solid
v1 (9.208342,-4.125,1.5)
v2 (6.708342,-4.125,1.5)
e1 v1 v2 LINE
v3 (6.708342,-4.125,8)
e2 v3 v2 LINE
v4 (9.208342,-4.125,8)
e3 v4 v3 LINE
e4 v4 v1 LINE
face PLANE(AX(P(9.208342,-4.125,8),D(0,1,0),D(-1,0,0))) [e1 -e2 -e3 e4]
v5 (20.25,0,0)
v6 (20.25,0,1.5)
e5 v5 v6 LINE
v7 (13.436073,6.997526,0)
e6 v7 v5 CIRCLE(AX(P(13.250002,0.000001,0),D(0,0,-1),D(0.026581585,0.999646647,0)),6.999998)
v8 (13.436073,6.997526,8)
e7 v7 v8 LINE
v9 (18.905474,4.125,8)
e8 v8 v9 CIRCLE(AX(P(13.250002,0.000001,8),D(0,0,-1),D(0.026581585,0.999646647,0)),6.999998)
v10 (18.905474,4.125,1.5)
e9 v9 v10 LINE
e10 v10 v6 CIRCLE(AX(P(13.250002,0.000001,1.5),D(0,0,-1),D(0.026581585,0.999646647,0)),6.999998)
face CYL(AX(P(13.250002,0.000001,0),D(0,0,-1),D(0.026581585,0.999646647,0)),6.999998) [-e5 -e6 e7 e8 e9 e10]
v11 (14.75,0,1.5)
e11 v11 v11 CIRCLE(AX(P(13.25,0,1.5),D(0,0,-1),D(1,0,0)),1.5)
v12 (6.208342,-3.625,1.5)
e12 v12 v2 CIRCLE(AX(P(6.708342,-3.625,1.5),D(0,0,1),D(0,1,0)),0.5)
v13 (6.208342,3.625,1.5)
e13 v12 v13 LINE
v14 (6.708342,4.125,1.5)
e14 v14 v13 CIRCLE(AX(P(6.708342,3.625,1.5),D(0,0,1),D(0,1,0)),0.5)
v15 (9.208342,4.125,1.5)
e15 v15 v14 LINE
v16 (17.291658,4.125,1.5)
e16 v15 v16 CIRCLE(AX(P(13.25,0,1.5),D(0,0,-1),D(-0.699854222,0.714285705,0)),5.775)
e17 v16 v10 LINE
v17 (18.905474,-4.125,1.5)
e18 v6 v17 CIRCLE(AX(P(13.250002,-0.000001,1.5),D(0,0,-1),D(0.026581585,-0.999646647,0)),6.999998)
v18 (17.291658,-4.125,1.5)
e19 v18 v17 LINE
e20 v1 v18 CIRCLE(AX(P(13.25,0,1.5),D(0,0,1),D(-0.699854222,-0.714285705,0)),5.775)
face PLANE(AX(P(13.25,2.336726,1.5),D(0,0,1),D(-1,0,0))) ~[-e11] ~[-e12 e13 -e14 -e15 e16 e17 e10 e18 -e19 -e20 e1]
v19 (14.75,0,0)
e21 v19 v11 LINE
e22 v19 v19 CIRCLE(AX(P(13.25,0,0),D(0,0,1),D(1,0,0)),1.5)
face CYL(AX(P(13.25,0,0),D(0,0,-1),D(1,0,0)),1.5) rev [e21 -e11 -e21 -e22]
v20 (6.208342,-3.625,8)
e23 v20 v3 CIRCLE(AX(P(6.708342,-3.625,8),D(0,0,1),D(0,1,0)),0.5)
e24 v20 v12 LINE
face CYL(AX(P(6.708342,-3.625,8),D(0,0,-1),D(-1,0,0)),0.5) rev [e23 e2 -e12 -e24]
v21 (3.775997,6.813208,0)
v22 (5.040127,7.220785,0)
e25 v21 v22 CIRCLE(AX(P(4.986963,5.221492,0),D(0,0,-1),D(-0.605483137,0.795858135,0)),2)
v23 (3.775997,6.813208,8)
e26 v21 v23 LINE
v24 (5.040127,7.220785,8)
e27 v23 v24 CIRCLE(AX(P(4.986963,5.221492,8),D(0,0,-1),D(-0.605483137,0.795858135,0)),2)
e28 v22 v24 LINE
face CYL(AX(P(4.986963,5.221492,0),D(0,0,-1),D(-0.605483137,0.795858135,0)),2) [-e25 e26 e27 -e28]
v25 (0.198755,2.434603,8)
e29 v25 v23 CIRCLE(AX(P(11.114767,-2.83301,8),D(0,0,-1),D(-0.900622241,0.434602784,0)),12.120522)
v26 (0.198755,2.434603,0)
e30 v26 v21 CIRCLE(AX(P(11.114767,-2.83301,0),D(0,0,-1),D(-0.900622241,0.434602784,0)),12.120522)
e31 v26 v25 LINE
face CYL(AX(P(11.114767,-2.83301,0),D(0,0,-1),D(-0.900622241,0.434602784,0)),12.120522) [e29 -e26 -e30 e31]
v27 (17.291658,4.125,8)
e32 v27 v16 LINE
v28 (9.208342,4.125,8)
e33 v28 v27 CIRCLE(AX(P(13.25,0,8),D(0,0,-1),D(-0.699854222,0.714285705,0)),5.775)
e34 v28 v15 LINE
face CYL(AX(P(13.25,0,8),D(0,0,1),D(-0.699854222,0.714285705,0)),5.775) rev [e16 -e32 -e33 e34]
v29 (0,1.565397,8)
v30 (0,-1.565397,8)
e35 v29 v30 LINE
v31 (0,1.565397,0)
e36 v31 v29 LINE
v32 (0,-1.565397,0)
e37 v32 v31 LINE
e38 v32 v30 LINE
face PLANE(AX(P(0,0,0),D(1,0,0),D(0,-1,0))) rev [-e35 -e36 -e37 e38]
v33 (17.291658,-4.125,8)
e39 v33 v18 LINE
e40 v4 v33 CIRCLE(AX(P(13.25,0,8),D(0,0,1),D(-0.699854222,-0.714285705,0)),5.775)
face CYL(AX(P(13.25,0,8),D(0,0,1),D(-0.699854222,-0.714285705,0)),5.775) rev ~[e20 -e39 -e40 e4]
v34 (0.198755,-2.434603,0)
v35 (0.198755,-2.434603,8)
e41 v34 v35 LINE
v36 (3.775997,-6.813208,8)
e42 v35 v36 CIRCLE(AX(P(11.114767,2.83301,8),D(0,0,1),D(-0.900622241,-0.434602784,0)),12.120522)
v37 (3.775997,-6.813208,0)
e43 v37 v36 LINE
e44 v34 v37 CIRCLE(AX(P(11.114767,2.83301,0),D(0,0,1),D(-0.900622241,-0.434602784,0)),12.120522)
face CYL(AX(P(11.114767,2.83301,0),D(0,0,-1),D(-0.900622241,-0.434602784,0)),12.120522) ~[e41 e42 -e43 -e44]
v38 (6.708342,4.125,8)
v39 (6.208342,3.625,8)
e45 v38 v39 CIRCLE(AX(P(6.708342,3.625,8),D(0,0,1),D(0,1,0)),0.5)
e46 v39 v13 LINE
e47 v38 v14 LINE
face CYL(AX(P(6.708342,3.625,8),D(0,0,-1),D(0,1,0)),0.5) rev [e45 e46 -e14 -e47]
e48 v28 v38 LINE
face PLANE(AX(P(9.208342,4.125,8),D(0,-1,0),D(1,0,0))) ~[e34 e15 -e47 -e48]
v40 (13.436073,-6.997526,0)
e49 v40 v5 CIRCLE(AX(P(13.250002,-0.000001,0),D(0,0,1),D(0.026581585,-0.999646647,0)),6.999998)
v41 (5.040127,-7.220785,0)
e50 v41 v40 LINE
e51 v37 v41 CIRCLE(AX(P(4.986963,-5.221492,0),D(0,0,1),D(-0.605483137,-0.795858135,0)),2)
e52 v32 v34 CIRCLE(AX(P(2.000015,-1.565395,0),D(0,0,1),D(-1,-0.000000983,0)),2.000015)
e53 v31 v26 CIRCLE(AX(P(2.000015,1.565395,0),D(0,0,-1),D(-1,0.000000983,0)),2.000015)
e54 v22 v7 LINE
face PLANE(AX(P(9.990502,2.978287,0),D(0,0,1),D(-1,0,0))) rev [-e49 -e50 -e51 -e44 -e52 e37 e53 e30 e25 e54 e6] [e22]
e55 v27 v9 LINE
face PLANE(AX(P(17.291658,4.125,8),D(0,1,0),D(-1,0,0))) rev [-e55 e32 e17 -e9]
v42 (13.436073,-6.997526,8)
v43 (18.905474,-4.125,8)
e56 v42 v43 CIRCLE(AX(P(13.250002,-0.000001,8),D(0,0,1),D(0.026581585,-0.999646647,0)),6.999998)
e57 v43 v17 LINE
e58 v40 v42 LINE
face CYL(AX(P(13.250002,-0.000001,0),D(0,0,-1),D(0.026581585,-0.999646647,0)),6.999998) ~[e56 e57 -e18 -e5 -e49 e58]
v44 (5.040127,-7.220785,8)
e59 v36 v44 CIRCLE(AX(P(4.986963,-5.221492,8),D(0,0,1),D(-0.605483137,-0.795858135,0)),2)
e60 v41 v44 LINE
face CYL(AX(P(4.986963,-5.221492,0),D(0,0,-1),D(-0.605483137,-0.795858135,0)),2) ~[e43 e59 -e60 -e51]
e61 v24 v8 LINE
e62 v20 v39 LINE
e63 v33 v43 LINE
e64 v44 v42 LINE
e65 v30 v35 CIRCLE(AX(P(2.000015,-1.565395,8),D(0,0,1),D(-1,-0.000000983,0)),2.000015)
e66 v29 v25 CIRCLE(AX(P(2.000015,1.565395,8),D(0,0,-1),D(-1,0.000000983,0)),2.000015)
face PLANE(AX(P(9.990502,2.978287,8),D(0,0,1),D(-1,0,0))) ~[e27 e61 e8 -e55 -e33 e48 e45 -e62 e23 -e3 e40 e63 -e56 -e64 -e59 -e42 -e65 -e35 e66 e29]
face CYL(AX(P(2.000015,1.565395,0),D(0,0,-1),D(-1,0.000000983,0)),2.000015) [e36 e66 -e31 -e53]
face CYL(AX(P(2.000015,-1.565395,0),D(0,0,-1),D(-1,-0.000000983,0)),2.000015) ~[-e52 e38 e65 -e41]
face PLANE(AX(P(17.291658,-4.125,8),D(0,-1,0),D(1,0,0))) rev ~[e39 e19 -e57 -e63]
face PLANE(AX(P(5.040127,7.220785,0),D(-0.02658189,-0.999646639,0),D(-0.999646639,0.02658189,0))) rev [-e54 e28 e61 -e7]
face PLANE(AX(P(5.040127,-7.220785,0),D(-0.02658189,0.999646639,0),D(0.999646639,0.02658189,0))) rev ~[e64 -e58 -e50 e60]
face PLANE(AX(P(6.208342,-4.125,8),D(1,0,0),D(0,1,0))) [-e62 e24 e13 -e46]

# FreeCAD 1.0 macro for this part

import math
import FreeCAD as App
import Part
import Sketcher
from FreeCAD import Vector
Q = App.Units.Quantity


def edges_at(feature, points):
    """Names of the edges that pass closest to the given points."""
    edges = feature.Shape.Edges
    near = lambda p: min(range(len(edges)), key=lambda i: edges[i].distToShape(Part.Vertex(*p))[0])
    return sorted({f"Edge{near(p) + 1}" for p in points})

doc = App.newDocument("Part")
params = doc.addObject("Spreadsheet::Sheet", "Params")
for row, (alias, value) in enumerate([
    ("sketch1_radius", "2 mm"),
    ("sketch1_radius2", "6.999998 mm"),
    ("sketch1_width", "20.25 mm"),
    ("pad1_length", "8 mm"),
    ("sketch2_width", "3 mm"),
    ("pocket1_length", "6.5 mm"),
    ("sketch3_diameter", "3 mm"),
    ("fillet_radius", "0.5 mm"),
], start=1):
    params.set(f"A{row}", alias)
    params.set(f"B{row}", "=" + value)
    params.setAlias(f"B{row}", alias)

body = doc.addObject("PartDesign::Body", "Body")

sketch1 = body.newObject("Sketcher::SketchObject", "Sketch")
sketch1.AttachmentSupport = (doc.getObject("XY_Plane"), [""])
sketch1.MapMode = "FlatFace"
sketch1.addGeometry(Part.ArcOfCircle(Part.Circle(Vector(11.1, 2.8, 0), Vector(0, 0, 1), 12.1), math.radians(-154), math.radians(-127)), False)
sketch1.addGeometry(Part.ArcOfCircle(Part.Circle(Vector(5, -5.2, 0), Vector(0, 0, 1), 2), math.radians(-127), math.radians(-88)), False)
sketch1.addGeometry(Part.LineSegment(Vector(5, -7.2, 0), Vector(13.4, -7, 0)), False)
sketch1.addGeometry(Part.ArcOfCircle(Part.Circle(Vector(13.3, 0, 0), Vector(0, 0, 1), 7), math.radians(-88), math.radians(0)), False)
sketch1.addGeometry(Part.LineSegment(Vector(20.2, 0, 0), Vector(0, 0, 0)), False)
sketch1.addGeometry(Part.LineSegment(Vector(0, 0, 0), Vector(0, -1.6, 0)), False)
sketch1.addGeometry(Part.ArcOfCircle(Part.Circle(Vector(2, -1.6, 0), Vector(0, 0, 1), 2), math.radians(-180), math.radians(-154)), False)
sketch1.addConstraint(Sketcher.Constraint("Tangent", 0, 2, 1, 1))
sketch1.addConstraint(Sketcher.Constraint("Tangent", 1, 2, 2, 1))
sketch1.addConstraint(Sketcher.Constraint("Tangent", 2, 2, 3, 1))
sketch1.addConstraint(Sketcher.Constraint("Coincident", 3, 2, 4, 1))
sketch1.addConstraint(Sketcher.Constraint("Coincident", 4, 2, 5, 1))
sketch1.addConstraint(Sketcher.Constraint("Tangent", 5, 2, 6, 1))
sketch1.addConstraint(Sketcher.Constraint("Coincident", 6, 2, 0, 1))
sketch1.addConstraint(Sketcher.Constraint("Horizontal", 4))
sketch1.addConstraint(Sketcher.Constraint("Vertical", 5))
sketch1.addConstraint(Sketcher.Constraint("Coincident", 4, 2, -1, 1))
sketch1.addConstraint(Sketcher.Constraint("PointOnObject", 3, 3, -1))
sketch1.addConstraint(Sketcher.Constraint("Radius", 1, Q("2 mm")))
sketch1.addConstraint(Sketcher.Constraint("Radius", 3, Q("6.999998 mm")))
sketch1.addConstraint(Sketcher.Constraint("DistanceX", 4, 2, 4, 1, Q("20.25 mm")))
sketch1.addConstraint(Sketcher.Constraint("Radius", 0, Q("12.120522 mm")))
sketch1.addConstraint(Sketcher.Constraint("Radius", 6, Q("2.000015 mm")))
sketch1.addConstraint(Sketcher.Constraint("DistanceY", 1, 3, 0, 3, Q("8.054502 mm")))
sketch1.addConstraint(Sketcher.Constraint("DistanceY", 5, 2, 5, 1, Q("1.565397 mm")))
sketch1.addConstraint(Sketcher.Constraint("DistanceY", -1, 1, 0, 3, Q("2.83301 mm")))
sketch1.addConstraint(Sketcher.Constraint("DistanceX", 6, 2, 6, 3, Q("1.80126 mm")))
sketch1.setExpression("Constraints[11]", "Params.sketch1_radius")
sketch1.setExpression("Constraints[12]", "Params.sketch1_radius2")
sketch1.setExpression("Constraints[13]", "Params.sketch1_width")
pad1 = body.newObject("PartDesign::Pad", "Pad")
pad1.Profile = sketch1
pad1.setExpression("Length", "Params.pad1_length")
doc.recompute()

mirrored = body.newObject("PartDesign::Mirrored", "Mirrored")
mirrored.Originals = [pad1]
mirrored.MirrorPlane = (doc.getObject("XZ_Plane"), [""])
body.Tip = mirrored

sketch2 = body.newObject("Sketcher::SketchObject", "Sketch001")
sketch2.AttachmentSupport = (doc.getObject("XY_Plane"), [""])
sketch2.MapMode = "FlatFace"
sketch2.AttachmentOffset = App.Placement(Vector(0, 0, 8), App.Rotation())
sketch2.addGeometry(Part.LineSegment(Vector(17.3, -4.1, 0), Vector(20.3, -4.1, 0)), False)
sketch2.addGeometry(Part.LineSegment(Vector(20.3, -4.1, 0), Vector(20.3, 0, 0)), False)
sketch2.addGeometry(Part.LineSegment(Vector(20.3, 0, 0), Vector(6.2, 0, 0)), False)
sketch2.addGeometry(Part.LineSegment(Vector(6.2, 0, 0), Vector(6.2, -4.1, 0)), False)
sketch2.addGeometry(Part.LineSegment(Vector(6.2, -4.1, 0), Vector(9.2, -4.1, 0)), False)
sketch2.addGeometry(Part.ArcOfCircle(Part.Circle(Vector(13.2, 0, 0), Vector(0, 0, 1), 5.8), math.radians(-134), math.radians(-46)), False)
sketch2.addConstraint(Sketcher.Constraint("Coincident", 0, 2, 1, 1))
sketch2.addConstraint(Sketcher.Constraint("Coincident", 1, 2, 2, 1))
sketch2.addConstraint(Sketcher.Constraint("Coincident", 2, 2, 3, 1))
sketch2.addConstraint(Sketcher.Constraint("Coincident", 3, 2, 4, 1))
sketch2.addConstraint(Sketcher.Constraint("Coincident", 4, 2, 5, 1))
sketch2.addConstraint(Sketcher.Constraint("Coincident", 5, 2, 0, 1))
sketch2.addConstraint(Sketcher.Constraint("Horizontal", 0))
sketch2.addConstraint(Sketcher.Constraint("Vertical", 1))
sketch2.addConstraint(Sketcher.Constraint("Horizontal", 2))
sketch2.addConstraint(Sketcher.Constraint("Vertical", 3))
sketch2.addConstraint(Sketcher.Constraint("Horizontal", 4))
sketch2.addConstraint(Sketcher.Constraint("PointOnObject", 5, 3, -1))
sketch2.addConstraint(Sketcher.Constraint("PointOnObject", 1, 2, -1))
sketch2.addConstraint(Sketcher.Constraint("Horizontal", 0, 2, 3, 2))
sketch2.addConstraint(Sketcher.Constraint("Equal", 0, 4))
sketch2.addConstraint(Sketcher.Constraint("DistanceX", 0, 1, 0, 2, Q("3 mm")))
sketch2.addConstraint(Sketcher.Constraint("Radius", 5, Q("5.775 mm")))
sketch2.addConstraint(Sketcher.Constraint("DistanceY", 1, 1, 1, 2, Q("4.125 mm")))
sketch2.addConstraint(Sketcher.Constraint("DistanceX", -1, 1, 5, 3, Q("13.25 mm")))
sketch2.setExpression("Constraints[15]", "Params.sketch2_width")
pocket1 = body.newObject("PartDesign::Pocket", "Pocket")
pocket1.Profile = sketch2
pocket1.setExpression("Length", "Params.pocket1_length")
doc.recompute()

mirrored2 = body.newObject("PartDesign::Mirrored", "Mirrored001")
mirrored2.Originals = [pocket1]
mirrored2.MirrorPlane = (doc.getObject("XZ_Plane"), [""])
body.Tip = mirrored2

sketch3 = body.newObject("Sketcher::SketchObject", "Sketch002")
sketch3.AttachmentSupport = (doc.getObject("XY_Plane"), [""])
sketch3.MapMode = "FlatFace"
sketch3.addGeometry(Part.Circle(Vector(13.2, 0, 0), Vector(0, 0, 1), 1.5), False)
sketch3.addConstraint(Sketcher.Constraint("PointOnObject", 0, 3, -1))
sketch3.addConstraint(Sketcher.Constraint("Diameter", 0, Q("3 mm")))
sketch3.addConstraint(Sketcher.Constraint("DistanceX", -1, 1, 0, 3, Q("13.25 mm")))
sketch3.setExpression("Constraints[1]", "Params.sketch3_diameter")
pocket2 = body.newObject("PartDesign::Pocket", "Pocket001")
pocket2.Profile = sketch3
pocket2.Type = "ThroughAll"
pocket2.Reversed = True
doc.recompute()

fillet = body.newObject("PartDesign::Fillet", "Fillet")
fillet.Base = (pocket2, edges_at(pocket2, [(6.208, 4.125, 4.75), (6.208, -4.125, 4.75)]))
fillet.setExpression("Radius", "Params.fillet_radius")

doc.recompute()
